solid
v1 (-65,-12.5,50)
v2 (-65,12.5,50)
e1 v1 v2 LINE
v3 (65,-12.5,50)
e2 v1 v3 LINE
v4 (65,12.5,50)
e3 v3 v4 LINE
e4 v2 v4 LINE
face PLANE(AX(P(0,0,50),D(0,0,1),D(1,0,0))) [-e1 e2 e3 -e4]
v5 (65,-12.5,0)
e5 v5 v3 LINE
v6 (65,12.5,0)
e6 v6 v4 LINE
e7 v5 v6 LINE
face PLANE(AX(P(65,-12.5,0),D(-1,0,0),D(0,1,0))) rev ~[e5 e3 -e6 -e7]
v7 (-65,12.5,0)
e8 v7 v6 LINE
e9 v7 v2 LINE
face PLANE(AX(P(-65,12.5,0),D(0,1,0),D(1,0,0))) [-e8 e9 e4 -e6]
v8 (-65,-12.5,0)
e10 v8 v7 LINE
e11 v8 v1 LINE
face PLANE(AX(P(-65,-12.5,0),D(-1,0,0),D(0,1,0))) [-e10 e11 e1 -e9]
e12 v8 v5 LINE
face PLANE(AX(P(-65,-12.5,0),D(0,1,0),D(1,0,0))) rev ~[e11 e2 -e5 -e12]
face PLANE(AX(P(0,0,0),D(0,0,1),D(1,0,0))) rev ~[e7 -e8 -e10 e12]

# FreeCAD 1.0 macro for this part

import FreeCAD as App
import Part
import Sketcher

V = App.Vector

doc = App.newDocument("Part")
body = doc.addObject("PartDesign::Body", "Body")

sketch1 = body.newObject("Sketcher::SketchObject", "Sketch")
sketch1.AttachmentSupport = (doc.getObject("XY_Plane"), [""])
sketch1.MapMode = "FlatFace"
sketch1.addGeometry([
    Part.LineSegment(V(-65, 12, 0), V(-65, -12, 0)),
    Part.LineSegment(V(-65, -12, 0), V(65, -12, 0)),
    Part.LineSegment(V(65, -12, 0), V(65, 12, 0)),
    Part.LineSegment(V(65, 12, 0), V(-65, 12, 0)),
], False)
sketch1.addConstraint([
    Sketcher.Constraint("Coincident", 0, 2, 1, 1),
    Sketcher.Constraint("Coincident", 1, 2, 2, 1),
    Sketcher.Constraint("Coincident", 2, 2, 3, 1),
    Sketcher.Constraint("Coincident", 3, 2, 0, 1),
    Sketcher.Constraint("Vertical", 0),
    Sketcher.Constraint("Horizontal", 1),
    Sketcher.Constraint("Vertical", 2),
    Sketcher.Constraint("Horizontal", 3),
    Sketcher.Constraint("Symmetric", 0, 2, 2, 2, -1, 1),
    Sketcher.Constraint("DistanceX", 1, 1, 1, 2, 130.0),
    Sketcher.Constraint("DistanceY", 0, 2, 0, 1, 25.0),
])
pad1 = body.newObject("PartDesign::Pad", "Pad")
pad1.Profile = sketch1
pad1.Length = 50

doc.recompute()
